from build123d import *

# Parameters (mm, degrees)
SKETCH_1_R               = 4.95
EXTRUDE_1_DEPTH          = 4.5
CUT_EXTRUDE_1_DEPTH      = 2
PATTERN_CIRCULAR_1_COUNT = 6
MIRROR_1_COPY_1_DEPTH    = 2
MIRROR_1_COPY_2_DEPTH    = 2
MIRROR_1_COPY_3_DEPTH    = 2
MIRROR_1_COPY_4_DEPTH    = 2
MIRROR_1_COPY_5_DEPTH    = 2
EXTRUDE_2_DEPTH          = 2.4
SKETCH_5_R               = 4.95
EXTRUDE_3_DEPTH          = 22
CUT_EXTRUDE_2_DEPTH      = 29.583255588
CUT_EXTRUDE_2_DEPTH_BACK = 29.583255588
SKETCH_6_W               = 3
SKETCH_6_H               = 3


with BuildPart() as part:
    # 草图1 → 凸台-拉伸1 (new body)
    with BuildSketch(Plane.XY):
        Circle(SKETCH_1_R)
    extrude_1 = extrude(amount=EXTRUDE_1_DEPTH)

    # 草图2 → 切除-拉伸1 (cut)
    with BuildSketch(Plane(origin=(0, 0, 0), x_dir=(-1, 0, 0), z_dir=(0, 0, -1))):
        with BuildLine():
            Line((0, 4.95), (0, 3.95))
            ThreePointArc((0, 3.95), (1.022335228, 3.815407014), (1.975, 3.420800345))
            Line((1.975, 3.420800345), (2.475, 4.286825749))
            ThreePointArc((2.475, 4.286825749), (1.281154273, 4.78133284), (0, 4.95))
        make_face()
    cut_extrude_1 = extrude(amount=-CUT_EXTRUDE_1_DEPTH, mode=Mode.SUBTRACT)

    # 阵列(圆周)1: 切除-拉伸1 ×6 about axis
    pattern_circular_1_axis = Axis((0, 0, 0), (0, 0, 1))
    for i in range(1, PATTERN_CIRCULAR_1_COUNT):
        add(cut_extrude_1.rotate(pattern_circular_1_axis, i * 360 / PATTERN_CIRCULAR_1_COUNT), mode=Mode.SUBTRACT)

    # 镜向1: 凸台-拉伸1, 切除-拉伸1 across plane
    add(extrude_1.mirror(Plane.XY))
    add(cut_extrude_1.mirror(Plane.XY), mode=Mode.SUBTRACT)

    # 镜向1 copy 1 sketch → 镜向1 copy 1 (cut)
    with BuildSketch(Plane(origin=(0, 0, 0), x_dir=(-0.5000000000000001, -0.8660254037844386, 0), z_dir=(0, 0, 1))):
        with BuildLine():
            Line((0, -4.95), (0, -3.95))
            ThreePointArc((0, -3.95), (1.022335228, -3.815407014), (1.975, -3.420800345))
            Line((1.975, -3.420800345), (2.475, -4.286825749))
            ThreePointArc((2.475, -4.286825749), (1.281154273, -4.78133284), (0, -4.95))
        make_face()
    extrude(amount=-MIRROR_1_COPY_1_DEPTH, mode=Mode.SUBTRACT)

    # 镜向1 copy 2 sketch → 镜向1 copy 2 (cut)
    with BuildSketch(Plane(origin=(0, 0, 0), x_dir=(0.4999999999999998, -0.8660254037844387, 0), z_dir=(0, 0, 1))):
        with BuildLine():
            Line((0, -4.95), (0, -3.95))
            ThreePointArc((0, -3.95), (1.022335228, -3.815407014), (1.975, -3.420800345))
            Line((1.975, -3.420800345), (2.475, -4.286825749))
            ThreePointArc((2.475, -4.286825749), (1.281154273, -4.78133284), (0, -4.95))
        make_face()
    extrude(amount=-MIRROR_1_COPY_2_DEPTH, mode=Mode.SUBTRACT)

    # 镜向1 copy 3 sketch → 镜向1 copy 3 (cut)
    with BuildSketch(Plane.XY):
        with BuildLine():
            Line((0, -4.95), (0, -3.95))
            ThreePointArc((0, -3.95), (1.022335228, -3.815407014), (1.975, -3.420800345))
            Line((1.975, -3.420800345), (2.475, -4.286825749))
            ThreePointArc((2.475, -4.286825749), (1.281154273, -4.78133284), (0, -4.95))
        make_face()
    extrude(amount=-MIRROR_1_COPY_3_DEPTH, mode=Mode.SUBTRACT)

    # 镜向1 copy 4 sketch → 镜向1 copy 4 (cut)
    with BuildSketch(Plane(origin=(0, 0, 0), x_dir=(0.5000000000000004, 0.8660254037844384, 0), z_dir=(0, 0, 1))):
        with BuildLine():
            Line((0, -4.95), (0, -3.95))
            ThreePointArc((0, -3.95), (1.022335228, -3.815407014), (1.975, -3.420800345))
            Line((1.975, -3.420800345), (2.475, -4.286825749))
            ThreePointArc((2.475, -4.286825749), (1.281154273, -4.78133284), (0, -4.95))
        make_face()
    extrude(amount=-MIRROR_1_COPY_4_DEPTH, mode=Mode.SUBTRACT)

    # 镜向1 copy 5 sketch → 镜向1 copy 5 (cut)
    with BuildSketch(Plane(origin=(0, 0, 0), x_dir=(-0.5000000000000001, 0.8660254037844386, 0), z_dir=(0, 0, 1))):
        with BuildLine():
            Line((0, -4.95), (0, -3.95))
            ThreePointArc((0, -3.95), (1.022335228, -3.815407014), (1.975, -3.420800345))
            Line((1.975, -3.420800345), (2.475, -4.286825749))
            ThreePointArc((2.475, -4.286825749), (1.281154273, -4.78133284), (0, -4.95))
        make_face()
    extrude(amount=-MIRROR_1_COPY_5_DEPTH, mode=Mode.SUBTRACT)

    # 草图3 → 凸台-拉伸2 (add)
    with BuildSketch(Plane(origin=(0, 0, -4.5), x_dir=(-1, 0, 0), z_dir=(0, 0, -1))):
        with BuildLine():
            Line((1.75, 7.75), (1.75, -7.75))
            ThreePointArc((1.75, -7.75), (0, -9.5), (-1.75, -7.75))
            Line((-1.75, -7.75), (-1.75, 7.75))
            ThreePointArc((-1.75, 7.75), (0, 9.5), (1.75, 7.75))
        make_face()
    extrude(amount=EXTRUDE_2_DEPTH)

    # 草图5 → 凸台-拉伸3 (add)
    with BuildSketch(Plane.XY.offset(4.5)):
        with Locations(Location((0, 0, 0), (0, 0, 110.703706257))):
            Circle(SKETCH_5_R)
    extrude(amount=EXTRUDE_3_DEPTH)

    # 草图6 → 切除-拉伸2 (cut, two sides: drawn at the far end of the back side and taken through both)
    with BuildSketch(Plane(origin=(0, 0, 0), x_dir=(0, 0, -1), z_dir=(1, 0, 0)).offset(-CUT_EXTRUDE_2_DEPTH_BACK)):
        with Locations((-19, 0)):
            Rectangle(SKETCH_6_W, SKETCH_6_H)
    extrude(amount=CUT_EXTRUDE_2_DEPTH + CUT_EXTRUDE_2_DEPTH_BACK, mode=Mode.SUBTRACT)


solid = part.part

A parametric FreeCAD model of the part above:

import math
import FreeCAD as App
import Part
import Sketcher
from FreeCAD import Vector
Q = App.Units.Quantity

doc = App.newDocument("Part")
body = doc.addObject("PartDesign::Body", "Body")

sketch1 = body.newObject("Sketcher::SketchObject", "Sketch")
sketch1.AttachmentSupport = (doc.getObject("XY_Plane"), [""])
sketch1.MapMode = "FlatFace"
sketch1.addGeometry(Part.Circle(Vector(0, 0, 0), Vector(0, 0, 1), 4.95), False)
sketch1.addConstraint(Sketcher.Constraint("Coincident", 0, 3, -1, 1))
sketch1.addConstraint(Sketcher.Constraint("Diameter", 0, 9.9))
pad1 = body.newObject("PartDesign::Pad", "Pad")
pad1.Profile = sketch1
pad1.Length = 4.5

sketch2 = body.newObject("Sketcher::SketchObject", "Sketch001")
sketch2.AttachmentSupport = (doc.getObject("XY_Plane"), [""])
sketch2.MapMode = "FlatFace"
sketch2.addGeometry(Part.LineSegment(Vector(0, 4.95, 0), Vector(0, 3.95, 0)), False)
sketch2.addGeometry(Part.ArcOfCircle(Part.Circle(Vector(0, 0, 0), Vector(0, 0, 1), 3.95), math.radians(90), math.radians(120)), False)
sketch2.addGeometry(Part.LineSegment(Vector(-1.975, 3.4208, 0), Vector(-2.475, 4.286826, 0)), False)
sketch2.addGeometry(Part.ArcOfCircle(Part.Circle(Vector(0, 0, 0), Vector(0, 0, 1), 4.95), math.radians(90), math.radians(120)), False)
sketch2.addConstraint(Sketcher.Constraint("Coincident", 0, 2, 1, 1))
sketch2.addConstraint(Sketcher.Constraint("Coincident", 1, 2, 2, 1))
sketch2.addConstraint(Sketcher.Constraint("Coincident", 2, 2, 3, 2))
sketch2.addConstraint(Sketcher.Constraint("Coincident", 3, 1, 0, 1))
sketch2.addConstraint(Sketcher.Constraint("Vertical", 0))
sketch2.addConstraint(Sketcher.Constraint("Coincident", 1, 3, -1, 1))
sketch2.addConstraint(Sketcher.Constraint("Coincident", 3, 3, -1, 1))
sketch2.addConstraint(Sketcher.Constraint("PointOnObject", 0, 2, -2))
sketch2.addConstraint(Sketcher.Constraint("DistanceY", 0, 2, 0, 1, 1.0))
sketch2.addConstraint(Sketcher.Constraint("Angle", 2, Q("120 deg")))
sketch2.addConstraint(Sketcher.Constraint("Radius", 1, 3.95))
sketch2.addConstraint(Sketcher.Constraint("DistanceX", 1, 2, -1, 1, 1.975))
pocket1 = body.newObject("PartDesign::Pocket", "Pocket")
pocket1.Profile = sketch2
pocket1.Length = 2
pocket1.Reversed = True
doc.recompute()

polarpattern = body.newObject("PartDesign::PolarPattern", "PolarPattern")
polarpattern.Originals = [pocket1]
polarpattern.Axis = (doc.getObject("Z_Axis"), [""])
polarpattern.Angle = 360
polarpattern.Occurrences = 6
body.Tip = polarpattern
doc.recompute()

mirrored = body.newObject("PartDesign::Mirrored", "Mirrored")
mirrored.Originals = [pad1, pocket1]
mirrored.MirrorPlane = (doc.getObject("XY_Plane"), [""])
body.Tip = mirrored

sketch3 = body.newObject("Sketcher::SketchObject", "Sketch002")
sketch3.AttachmentSupport = (doc.getObject("XY_Plane"), [""])
sketch3.MapMode = "FlatFace"
sketch3.addGeometry(Part.LineSegment(Vector(-3.4208, 1.975, 0), Vector(-4.286826, 2.475, 0)), False)
sketch3.addGeometry(Part.ArcOfCircle(Part.Circle(Vector(0, 0, 0), Vector(0, 0, 1), 4.95), math.radians(150), math.radians(180)), False)
sketch3.addGeometry(Part.LineSegment(Vector(-4.95, 0, 0), Vector(-3.95, 0, 0)), False)
sketch3.addGeometry(Part.ArcOfCircle(Part.Circle(Vector(0, 0, 0), Vector(0, 0, 1), 3.95), math.radians(150), math.radians(180)), False)
sketch3.addConstraint(Sketcher.Constraint("Coincident", 0, 2, 1, 1))
sketch3.addConstraint(Sketcher.Constraint("Coincident", 1, 2, 2, 1))
sketch3.addConstraint(Sketcher.Constraint("Coincident", 2, 2, 3, 2))
sketch3.addConstraint(Sketcher.Constraint("Coincident", 3, 1, 0, 1))
sketch3.addConstraint(Sketcher.Constraint("Horizontal", 2))
sketch3.addConstraint(Sketcher.Constraint("Coincident", 1, 3, -1, 1))
sketch3.addConstraint(Sketcher.Constraint("Coincident", 3, 3, -1, 1))
sketch3.addConstraint(Sketcher.Constraint("PointOnObject", 1, 2, -1))
sketch3.addConstraint(Sketcher.Constraint("DistanceX", 2, 1, 2, 2, 1.0))
sketch3.addConstraint(Sketcher.Constraint("Angle", 0, Q("150 deg")))
sketch3.addConstraint(Sketcher.Constraint("Radius", 1, 4.95))
sketch3.addConstraint(Sketcher.Constraint("DistanceY", -1, 1, 0, 2, 2.475))
pocket2 = body.newObject("PartDesign::Pocket", "Pocket001")
pocket2.Profile = sketch3
pocket2.Length = 2

sketch4 = body.newObject("Sketcher::SketchObject", "Sketch003")
sketch4.AttachmentSupport = (doc.getObject("XY_Plane"), [""])
sketch4.MapMode = "FlatFace"
sketch4.addGeometry(Part.LineSegment(Vector(-3.4208, -1.975, 0), Vector(-4.286826, -2.475, 0)), False)
sketch4.addGeometry(Part.ArcOfCircle(Part.Circle(Vector(0, 0, 0), Vector(0, 0, 1), 4.95), math.radians(-150), math.radians(-120)), False)
sketch4.addGeometry(Part.LineSegment(Vector(-2.475, -4.286826, 0), Vector(-1.975, -3.4208, 0)), False)
sketch4.addGeometry(Part.ArcOfCircle(Part.Circle(Vector(0, 0, 0), Vector(0, 0, 1), 3.95), math.radians(-150), math.radians(-120)), False)
sketch4.addConstraint(Sketcher.Constraint("Coincident", 0, 2, 1, 1))
sketch4.addConstraint(Sketcher.Constraint("Coincident", 1, 2, 2, 1))
sketch4.addConstraint(Sketcher.Constraint("Coincident", 2, 2, 3, 2))
sketch4.addConstraint(Sketcher.Constraint("Coincident", 3, 1, 0, 1))
sketch4.addConstraint(Sketcher.Constraint("Coincident", 1, 3, -1, 1))
sketch4.addConstraint(Sketcher.Constraint("Coincident", 3, 3, -1, 1))
sketch4.addConstraint(Sketcher.Constraint("Angle", 0, Q("-150 deg")))
sketch4.addConstraint(Sketcher.Constraint("Angle", 2, Q("60 deg")))
sketch4.addConstraint(Sketcher.Constraint("Radius", 1, 4.95))
sketch4.addConstraint(Sketcher.Constraint("Radius", 3, 3.95))
sketch4.addConstraint(Sketcher.Constraint("DistanceY", 0, 2, -1, 1, 2.475))
sketch4.addConstraint(Sketcher.Constraint("DistanceX", 1, 2, -1, 1, 2.475))
pocket3 = body.newObject("PartDesign::Pocket", "Pocket002")
pocket3.Profile = sketch4
pocket3.Length = 2

sketch5 = body.newObject("Sketcher::SketchObject", "Sketch004")
sketch5.AttachmentSupport = (doc.getObject("XY_Plane"), [""])
sketch5.MapMode = "FlatFace"
sketch5.addGeometry(Part.LineSegment(Vector(0, -3.95, 0), Vector(0, -4.95, 0)), False)
sketch5.addGeometry(Part.ArcOfCircle(Part.Circle(Vector(0, 0, 0), Vector(0, 0, 1), 4.95), math.radians(-90), math.radians(-60)), False)
sketch5.addGeometry(Part.LineSegment(Vector(2.475, -4.286826, 0), Vector(1.975, -3.4208, 0)), False)
sketch5.addGeometry(Part.ArcOfCircle(Part.Circle(Vector(0, 0, 0), Vector(0, 0, 1), 3.95), math.radians(-90), math.radians(-60)), False)
sketch5.addConstraint(Sketcher.Constraint("Coincident", 0, 2, 1, 1))
sketch5.addConstraint(Sketcher.Constraint("Coincident", 1, 2, 2, 1))
sketch5.addConstraint(Sketcher.Constraint("Coincident", 2, 2, 3, 2))
sketch5.addConstraint(Sketcher.Constraint("Coincident", 3, 1, 0, 1))
sketch5.addConstraint(Sketcher.Constraint("Vertical", 0))
sketch5.addConstraint(Sketcher.Constraint("Coincident", 1, 3, -1, 1))
sketch5.addConstraint(Sketcher.Constraint("Coincident", 3, 3, -1, 1))
sketch5.addConstraint(Sketcher.Constraint("PointOnObject", 0, 2, -2))
sketch5.addConstraint(Sketcher.Constraint("DistanceY", 0, 2, 0, 1, 1.0))
sketch5.addConstraint(Sketcher.Constraint("Angle", 2, Q("120 deg")))
sketch5.addConstraint(Sketcher.Constraint("Radius", 1, 4.95))
sketch5.addConstraint(Sketcher.Constraint("DistanceX", -1, 1, 1, 2, 2.475))
pocket4 = body.newObject("PartDesign::Pocket", "Pocket003")
pocket4.Profile = sketch5
pocket4.Length = 2

sketch6 = body.newObject("Sketcher::SketchObject", "Sketch005")
sketch6.AttachmentSupport = (doc.getObject("XY_Plane"), [""])
sketch6.MapMode = "FlatFace"
sketch6.addGeometry(Part.LineSegment(Vector(3.4208, -1.975, 0), Vector(4.286826, -2.475, 0)), False)
sketch6.addGeometry(Part.ArcOfCircle(Part.Circle(Vector(0, 0, 0), Vector(0, 0, 1), 4.95), math.radians(-30), math.radians(0)), False)
sketch6.addGeometry(Part.LineSegment(Vector(4.95, 0, 0), Vector(3.95, 0, 0)), False)
sketch6.addGeometry(Part.ArcOfCircle(Part.Circle(Vector(0, 0, 0), Vector(0, 0, 1), 3.95), math.radians(-30), math.radians(0)), False)
sketch6.addConstraint(Sketcher.Constraint("Coincident", 0, 2, 1, 1))
sketch6.addConstraint(Sketcher.Constraint("Coincident", 1, 2, 2, 1))
sketch6.addConstraint(Sketcher.Constraint("Coincident", 2, 2, 3, 2))
sketch6.addConstraint(Sketcher.Constraint("Coincident", 3, 1, 0, 1))
sketch6.addConstraint(Sketcher.Constraint("Horizontal", 2))
sketch6.addConstraint(Sketcher.Constraint("Coincident", 1, 3, -1, 1))
sketch6.addConstraint(Sketcher.Constraint("Coincident", 3, 3, -1, 1))
sketch6.addConstraint(Sketcher.Constraint("PointOnObject", 1, 2, -1))
sketch6.addConstraint(Sketcher.Constraint("DistanceX", 2, 2, 2, 1, 1.0))
sketch6.addConstraint(Sketcher.Constraint("Angle", 0, Q("-30 deg")))
sketch6.addConstraint(Sketcher.Constraint("Radius", 1, 4.95))
sketch6.addConstraint(Sketcher.Constraint("DistanceY", 0, 2, -1, 1, 2.475))
pocket5 = body.newObject("PartDesign::Pocket", "Pocket004")
pocket5.Profile = sketch6
pocket5.Length = 2

sketch7 = body.newObject("Sketcher::SketchObject", "Sketch006")
sketch7.AttachmentSupport = (doc.getObject("XY_Plane"), [""])
sketch7.MapMode = "FlatFace"
sketch7.addGeometry(Part.LineSegment(Vector(3.4208, 1.975, 0), Vector(4.286826, 2.475, 0)), False)
sketch7.addGeometry(Part.ArcOfCircle(Part.Circle(Vector(0, 0, 0), Vector(0, 0, 1), 4.95), math.radians(30), math.radians(60)), False)
sketch7.addGeometry(Part.LineSegment(Vector(2.475, 4.286826, 0), Vector(1.975, 3.4208, 0)), False)
sketch7.addGeometry(Part.ArcOfCircle(Part.Circle(Vector(0, 0, 0), Vector(0, 0, 1), 3.95), math.radians(30), math.radians(60)), False)
sketch7.addConstraint(Sketcher.Constraint("Coincident", 0, 2, 1, 1))
sketch7.addConstraint(Sketcher.Constraint("Coincident", 1, 2, 2, 1))
sketch7.addConstraint(Sketcher.Constraint("Coincident", 2, 2, 3, 2))
sketch7.addConstraint(Sketcher.Constraint("Coincident", 3, 1, 0, 1))
sketch7.addConstraint(Sketcher.Constraint("Coincident", 1, 3, -1, 1))
sketch7.addConstraint(Sketcher.Constraint("Coincident", 3, 3, -1, 1))
sketch7.addConstraint(Sketcher.Constraint("Angle", 0, Q("30 deg")))
sketch7.addConstraint(Sketcher.Constraint("Angle", 2, Q("-120 deg")))
sketch7.addConstraint(Sketcher.Constraint("Radius", 1, 4.95))
sketch7.addConstraint(Sketcher.Constraint("Radius", 3, 3.95))
sketch7.addConstraint(Sketcher.Constraint("DistanceY", -1, 1, 0, 2, 2.475))
sketch7.addConstraint(Sketcher.Constraint("DistanceX", -1, 1, 1, 2, 2.475))
pocket6 = body.newObject("PartDesign::Pocket", "Pocket005")
pocket6.Profile = sketch7
pocket6.Length = 2

sketch8 = body.newObject("Sketcher::SketchObject", "Sketch007")
sketch8.AttachmentSupport = (doc.getObject("XY_Plane"), [""])
sketch8.MapMode = "FlatFace"
sketch8.AttachmentOffset = App.Placement(Vector(0, 0, -4.5), App.Rotation())
sketch8.addGeometry(Part.LineSegment(Vector(-1.75, -7.75, 0), Vector(-1.75, 7.75, 0)), False)
sketch8.addGeometry(Part.ArcOfCircle(Part.Circle(Vector(0, 7.75, 0), Vector(0, 0, 1), 1.75), math.radians(0), math.radians(180)), False)
sketch8.addGeometry(Part.LineSegment(Vector(1.75, 7.75, 0), Vector(1.75, -7.75, 0)), False)
sketch8.addGeometry(Part.ArcOfCircle(Part.Circle(Vector(0, -7.75, 0), Vector(0, 0, 1), 1.75), math.radians(180), math.radians(360)), False)
sketch8.addConstraint(Sketcher.Constraint("Tangent", 0, 2, 1, 2))
sketch8.addConstraint(Sketcher.Constraint("Tangent", 1, 1, 2, 1))
sketch8.addConstraint(Sketcher.Constraint("Tangent", 2, 2, 3, 2))
sketch8.addConstraint(Sketcher.Constraint("Tangent", 3, 1, 0, 1))
sketch8.addConstraint(Sketcher.Constraint("Vertical", 0))
sketch8.addConstraint(Sketcher.Constraint("Vertical", 2))
sketch8.addConstraint(Sketcher.Constraint("Symmetric", 1, 3, 3, 3, -1, 1))
sketch8.addConstraint(Sketcher.Constraint("Radius", 1, 1.75))
sketch8.addConstraint(Sketcher.Constraint("DistanceY", 0, 1, 0, 2, 15.5))
pad2 = body.newObject("PartDesign::Pad", "Pad001")
pad2.Profile = sketch8
pad2.Length = 2.4
pad2.Reversed = True

sketch9 = body.newObject("Sketcher::SketchObject", "Sketch008")
sketch9.AttachmentSupport = (doc.getObject("XY_Plane"), [""])
sketch9.MapMode = "FlatFace"
sketch9.AttachmentOffset = App.Placement(Vector(0, 0, 4.5), App.Rotation())
sketch9.addGeometry(Part.Circle(Vector(0, 0, 0), Vector(0, 0, 1), 4.95), False)
sketch9.addConstraint(Sketcher.Constraint("Coincident", 0, 3, -1, 1))
sketch9.addConstraint(Sketcher.Constraint("Diameter", 0, 9.9))
pad3 = body.newObject("PartDesign::Pad", "Pad002")
pad3.Profile = sketch9
pad3.Length = 22

sketch10 = body.newObject("Sketcher::SketchObject", "Sketch009")
sketch10.AttachmentSupport = (doc.getObject("YZ_Plane"), [""])
sketch10.MapMode = "FlatFace"
sketch10.addGeometry(Part.LineSegment(Vector(1.5, 20.5, 0), Vector(-1.5, 20.5, 0)), False)
sketch10.addGeometry(Part.LineSegment(Vector(-1.5, 20.5, 0), Vector(-1.5, 17.5, 0)), False)
sketch10.addGeometry(Part.LineSegment(Vector(-1.5, 17.5, 0), Vector(1.5, 17.5, 0)), False)
sketch10.addGeometry(Part.LineSegment(Vector(1.5, 17.5, 0), Vector(1.5, 20.5, 0)), False)
sketch10.addConstraint(Sketcher.Constraint("Coincident", 0, 2, 1, 1))
sketch10.addConstraint(Sketcher.Constraint("Coincident", 1, 2, 2, 1))
sketch10.addConstraint(Sketcher.Constraint("Coincident", 2, 2, 3, 1))
sketch10.addConstraint(Sketcher.Constraint("Coincident", 3, 2, 0, 1))
sketch10.addConstraint(Sketcher.Constraint("Horizontal", 0))
sketch10.addConstraint(Sketcher.Constraint("Vertical", 1))
sketch10.addConstraint(Sketcher.Constraint("Horizontal", 2))
sketch10.addConstraint(Sketcher.Constraint("Vertical", 3))
sketch10.addConstraint(Sketcher.Constraint("Equal", 2, 1))
sketch10.addConstraint(Sketcher.Constraint("DistanceX", 0, 2, 0, 1, 3.0))
sketch10.addConstraint(Sketcher.Constraint("DistanceX", 0, 2, -1, 1, 1.5))
sketch10.addConstraint(Sketcher.Constraint("DistanceY", -1, 1, 0, 2, 20.5))
pocket7 = body.newObject("PartDesign::Pocket", "Pocket006")
pocket7.Profile = sketch10
pocket7.Type = "ThroughAll"
pocket7.Midplane = True

doc.recompute()
